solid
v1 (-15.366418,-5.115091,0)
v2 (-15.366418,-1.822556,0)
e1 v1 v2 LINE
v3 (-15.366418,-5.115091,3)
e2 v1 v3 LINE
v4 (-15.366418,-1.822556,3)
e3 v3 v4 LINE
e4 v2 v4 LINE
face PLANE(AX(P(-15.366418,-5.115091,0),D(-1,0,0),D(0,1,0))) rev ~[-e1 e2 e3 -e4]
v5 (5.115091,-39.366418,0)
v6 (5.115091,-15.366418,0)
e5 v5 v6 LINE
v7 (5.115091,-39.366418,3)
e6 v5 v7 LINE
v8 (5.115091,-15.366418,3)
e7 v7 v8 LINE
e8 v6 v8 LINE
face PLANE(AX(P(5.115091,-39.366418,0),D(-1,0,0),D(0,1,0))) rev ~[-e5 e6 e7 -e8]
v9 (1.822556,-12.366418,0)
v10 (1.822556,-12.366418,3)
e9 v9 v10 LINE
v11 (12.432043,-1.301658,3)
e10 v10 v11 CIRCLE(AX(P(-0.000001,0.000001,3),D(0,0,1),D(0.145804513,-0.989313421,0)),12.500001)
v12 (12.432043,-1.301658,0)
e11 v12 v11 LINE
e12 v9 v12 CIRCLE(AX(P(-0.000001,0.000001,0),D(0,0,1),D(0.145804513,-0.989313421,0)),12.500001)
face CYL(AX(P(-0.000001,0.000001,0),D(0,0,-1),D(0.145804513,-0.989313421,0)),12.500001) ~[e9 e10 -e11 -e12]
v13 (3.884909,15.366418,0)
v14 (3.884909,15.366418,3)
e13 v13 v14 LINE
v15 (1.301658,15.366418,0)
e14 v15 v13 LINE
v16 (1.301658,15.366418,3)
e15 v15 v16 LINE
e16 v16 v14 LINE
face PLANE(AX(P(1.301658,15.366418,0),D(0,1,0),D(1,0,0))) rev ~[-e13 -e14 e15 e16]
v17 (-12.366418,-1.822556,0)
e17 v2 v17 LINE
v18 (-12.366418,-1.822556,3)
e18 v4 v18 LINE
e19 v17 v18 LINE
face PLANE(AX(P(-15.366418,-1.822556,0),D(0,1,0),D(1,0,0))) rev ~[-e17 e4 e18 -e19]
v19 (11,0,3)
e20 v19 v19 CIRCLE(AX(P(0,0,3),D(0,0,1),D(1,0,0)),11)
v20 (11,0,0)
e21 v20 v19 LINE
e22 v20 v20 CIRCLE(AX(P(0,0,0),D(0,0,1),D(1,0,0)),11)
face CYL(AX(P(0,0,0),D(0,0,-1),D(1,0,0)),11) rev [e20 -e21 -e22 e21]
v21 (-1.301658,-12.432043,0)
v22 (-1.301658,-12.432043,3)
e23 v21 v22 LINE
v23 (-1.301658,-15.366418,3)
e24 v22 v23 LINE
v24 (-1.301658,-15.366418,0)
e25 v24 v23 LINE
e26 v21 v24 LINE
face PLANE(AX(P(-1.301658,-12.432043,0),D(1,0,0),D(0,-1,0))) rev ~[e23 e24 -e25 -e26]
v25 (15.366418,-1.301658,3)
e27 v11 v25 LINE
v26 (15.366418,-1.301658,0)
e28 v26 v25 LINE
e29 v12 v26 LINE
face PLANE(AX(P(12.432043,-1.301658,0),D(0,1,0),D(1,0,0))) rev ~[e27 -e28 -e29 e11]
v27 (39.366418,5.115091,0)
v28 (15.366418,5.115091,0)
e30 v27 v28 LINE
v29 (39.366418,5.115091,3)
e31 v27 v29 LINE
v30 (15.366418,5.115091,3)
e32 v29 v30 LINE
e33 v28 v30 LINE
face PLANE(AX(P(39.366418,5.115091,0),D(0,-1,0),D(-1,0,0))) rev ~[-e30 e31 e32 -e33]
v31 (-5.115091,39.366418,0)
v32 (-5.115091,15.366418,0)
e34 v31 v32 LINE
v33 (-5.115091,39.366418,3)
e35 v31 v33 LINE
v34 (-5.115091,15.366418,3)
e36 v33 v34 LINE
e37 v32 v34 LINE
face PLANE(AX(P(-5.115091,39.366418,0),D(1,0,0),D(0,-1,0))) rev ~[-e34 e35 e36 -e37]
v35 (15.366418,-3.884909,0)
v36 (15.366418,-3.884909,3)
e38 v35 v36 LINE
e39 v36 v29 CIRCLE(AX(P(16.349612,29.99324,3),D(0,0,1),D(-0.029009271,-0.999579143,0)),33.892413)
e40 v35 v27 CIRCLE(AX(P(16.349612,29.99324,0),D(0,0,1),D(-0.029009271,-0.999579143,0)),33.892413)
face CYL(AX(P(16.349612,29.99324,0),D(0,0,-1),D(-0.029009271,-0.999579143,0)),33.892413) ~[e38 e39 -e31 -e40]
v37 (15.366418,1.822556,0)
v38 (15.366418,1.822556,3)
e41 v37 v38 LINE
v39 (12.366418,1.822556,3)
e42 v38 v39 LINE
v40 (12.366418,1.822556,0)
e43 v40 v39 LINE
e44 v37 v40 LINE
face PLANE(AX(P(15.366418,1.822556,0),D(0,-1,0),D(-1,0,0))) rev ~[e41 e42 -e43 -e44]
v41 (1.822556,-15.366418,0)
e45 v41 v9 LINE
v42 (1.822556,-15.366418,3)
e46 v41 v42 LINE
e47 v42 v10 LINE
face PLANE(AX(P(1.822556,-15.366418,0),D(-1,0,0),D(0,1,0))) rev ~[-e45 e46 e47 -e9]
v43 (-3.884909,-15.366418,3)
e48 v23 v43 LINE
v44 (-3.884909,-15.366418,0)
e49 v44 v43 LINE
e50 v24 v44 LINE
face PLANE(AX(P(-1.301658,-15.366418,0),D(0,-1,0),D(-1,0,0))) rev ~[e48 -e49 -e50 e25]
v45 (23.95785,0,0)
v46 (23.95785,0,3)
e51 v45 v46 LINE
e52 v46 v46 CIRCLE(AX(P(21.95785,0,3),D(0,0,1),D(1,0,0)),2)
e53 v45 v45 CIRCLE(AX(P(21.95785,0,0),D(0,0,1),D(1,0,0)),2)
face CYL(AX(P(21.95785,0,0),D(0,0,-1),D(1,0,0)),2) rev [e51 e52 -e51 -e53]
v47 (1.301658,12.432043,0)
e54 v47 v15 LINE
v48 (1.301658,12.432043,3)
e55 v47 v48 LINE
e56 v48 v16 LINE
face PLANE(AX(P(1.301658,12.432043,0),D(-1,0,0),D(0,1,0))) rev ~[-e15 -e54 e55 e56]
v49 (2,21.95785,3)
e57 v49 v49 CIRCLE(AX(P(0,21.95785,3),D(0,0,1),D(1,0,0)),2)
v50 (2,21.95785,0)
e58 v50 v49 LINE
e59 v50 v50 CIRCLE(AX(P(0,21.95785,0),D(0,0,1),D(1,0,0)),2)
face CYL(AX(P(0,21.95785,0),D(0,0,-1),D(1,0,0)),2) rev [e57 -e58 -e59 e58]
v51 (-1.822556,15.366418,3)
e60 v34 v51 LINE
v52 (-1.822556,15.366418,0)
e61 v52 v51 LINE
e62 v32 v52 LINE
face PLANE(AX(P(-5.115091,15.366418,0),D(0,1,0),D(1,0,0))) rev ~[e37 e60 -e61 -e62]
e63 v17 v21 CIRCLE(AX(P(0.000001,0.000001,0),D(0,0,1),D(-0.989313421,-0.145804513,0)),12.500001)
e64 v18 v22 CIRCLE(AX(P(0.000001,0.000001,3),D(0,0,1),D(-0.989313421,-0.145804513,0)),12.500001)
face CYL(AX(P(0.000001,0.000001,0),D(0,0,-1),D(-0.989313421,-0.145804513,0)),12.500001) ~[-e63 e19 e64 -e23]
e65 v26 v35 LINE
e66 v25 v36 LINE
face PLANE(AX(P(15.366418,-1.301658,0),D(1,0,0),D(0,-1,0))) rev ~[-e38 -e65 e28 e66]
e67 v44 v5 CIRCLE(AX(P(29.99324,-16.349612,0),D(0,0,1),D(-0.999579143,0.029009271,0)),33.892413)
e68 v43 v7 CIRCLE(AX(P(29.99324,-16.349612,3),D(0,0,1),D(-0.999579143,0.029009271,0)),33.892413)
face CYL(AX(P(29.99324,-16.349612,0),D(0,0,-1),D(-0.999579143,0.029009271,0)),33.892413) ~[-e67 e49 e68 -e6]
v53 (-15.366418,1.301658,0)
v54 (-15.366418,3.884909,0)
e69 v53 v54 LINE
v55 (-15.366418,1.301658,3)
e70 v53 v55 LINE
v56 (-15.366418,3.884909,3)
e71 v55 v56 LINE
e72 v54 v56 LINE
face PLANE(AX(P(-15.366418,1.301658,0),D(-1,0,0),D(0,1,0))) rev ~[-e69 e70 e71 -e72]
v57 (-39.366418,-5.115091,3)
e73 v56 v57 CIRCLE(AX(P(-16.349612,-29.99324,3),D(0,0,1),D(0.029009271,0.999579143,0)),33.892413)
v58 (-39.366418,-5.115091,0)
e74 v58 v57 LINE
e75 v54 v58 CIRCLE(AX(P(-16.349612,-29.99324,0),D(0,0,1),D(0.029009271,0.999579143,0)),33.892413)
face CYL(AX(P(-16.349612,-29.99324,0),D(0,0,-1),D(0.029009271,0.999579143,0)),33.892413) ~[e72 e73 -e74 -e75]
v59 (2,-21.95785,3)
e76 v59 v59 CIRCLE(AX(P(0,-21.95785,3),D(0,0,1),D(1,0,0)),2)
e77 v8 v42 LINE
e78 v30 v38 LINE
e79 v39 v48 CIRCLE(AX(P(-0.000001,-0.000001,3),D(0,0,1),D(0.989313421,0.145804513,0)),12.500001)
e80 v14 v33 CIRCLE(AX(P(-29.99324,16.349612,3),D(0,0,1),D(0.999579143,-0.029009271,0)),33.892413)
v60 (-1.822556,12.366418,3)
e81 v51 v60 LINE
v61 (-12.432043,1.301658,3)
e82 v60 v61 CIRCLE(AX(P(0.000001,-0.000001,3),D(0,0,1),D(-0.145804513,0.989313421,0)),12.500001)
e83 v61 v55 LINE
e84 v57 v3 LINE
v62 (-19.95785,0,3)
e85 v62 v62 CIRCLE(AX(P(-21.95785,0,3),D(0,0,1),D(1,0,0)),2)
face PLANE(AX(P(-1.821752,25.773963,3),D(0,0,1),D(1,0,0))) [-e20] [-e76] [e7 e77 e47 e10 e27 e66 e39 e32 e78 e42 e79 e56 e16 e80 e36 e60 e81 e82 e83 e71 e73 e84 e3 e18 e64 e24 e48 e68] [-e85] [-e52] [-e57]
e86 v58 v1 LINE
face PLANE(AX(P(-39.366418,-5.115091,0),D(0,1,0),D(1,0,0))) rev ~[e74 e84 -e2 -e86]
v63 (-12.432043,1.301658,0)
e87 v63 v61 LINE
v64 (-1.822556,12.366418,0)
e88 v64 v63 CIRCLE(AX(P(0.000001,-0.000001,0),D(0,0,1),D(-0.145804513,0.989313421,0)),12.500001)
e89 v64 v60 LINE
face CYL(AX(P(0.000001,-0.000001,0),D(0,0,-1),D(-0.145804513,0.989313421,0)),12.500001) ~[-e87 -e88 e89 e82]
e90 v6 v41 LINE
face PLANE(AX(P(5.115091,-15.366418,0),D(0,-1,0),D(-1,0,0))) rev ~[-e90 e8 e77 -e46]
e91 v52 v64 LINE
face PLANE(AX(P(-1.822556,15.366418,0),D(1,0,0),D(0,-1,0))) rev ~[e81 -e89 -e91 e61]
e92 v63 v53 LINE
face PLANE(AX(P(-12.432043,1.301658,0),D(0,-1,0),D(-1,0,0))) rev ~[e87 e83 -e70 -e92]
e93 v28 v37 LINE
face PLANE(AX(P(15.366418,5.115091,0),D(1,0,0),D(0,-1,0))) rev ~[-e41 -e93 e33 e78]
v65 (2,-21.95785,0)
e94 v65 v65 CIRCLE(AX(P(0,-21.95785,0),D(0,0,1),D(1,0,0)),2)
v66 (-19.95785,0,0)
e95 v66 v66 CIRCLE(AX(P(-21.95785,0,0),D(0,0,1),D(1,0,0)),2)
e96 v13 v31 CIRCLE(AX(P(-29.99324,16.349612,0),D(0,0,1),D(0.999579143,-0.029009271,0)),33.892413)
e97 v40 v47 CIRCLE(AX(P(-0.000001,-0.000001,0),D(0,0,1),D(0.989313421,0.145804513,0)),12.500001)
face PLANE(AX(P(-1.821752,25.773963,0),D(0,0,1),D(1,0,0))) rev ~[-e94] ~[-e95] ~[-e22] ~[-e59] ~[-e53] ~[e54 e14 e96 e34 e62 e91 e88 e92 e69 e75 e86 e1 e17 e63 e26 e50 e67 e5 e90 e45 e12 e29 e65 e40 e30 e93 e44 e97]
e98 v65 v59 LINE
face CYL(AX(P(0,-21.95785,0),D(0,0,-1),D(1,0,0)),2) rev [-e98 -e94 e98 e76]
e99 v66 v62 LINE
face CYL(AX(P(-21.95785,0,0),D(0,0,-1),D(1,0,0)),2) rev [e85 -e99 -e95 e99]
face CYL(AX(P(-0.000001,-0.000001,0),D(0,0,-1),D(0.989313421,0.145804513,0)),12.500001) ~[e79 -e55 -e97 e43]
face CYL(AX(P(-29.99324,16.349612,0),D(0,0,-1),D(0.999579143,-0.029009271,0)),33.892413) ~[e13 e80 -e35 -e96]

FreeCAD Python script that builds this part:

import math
import FreeCAD as App
import Part
import Sketcher

V = App.Vector
Q = App.Units.Quantity

doc = App.newDocument("Part")
body = doc.addObject("PartDesign::Body", "Body")

# Sketch on XY plane
sketch1 = body.newObject("Sketcher::SketchObject", "Sketch")
sketch1.AttachmentSupport = (doc.getObject("XY_Plane"), [""])
sketch1.MapMode = "FlatFace"
sketch1.addGeometry(Part.ArcOfCircle(Part.Circle(V(-30, 16.3, 0), V(0, 0, 1), 33.9), math.radians(-2), math.radians(43)), False)
sketch1.addGeometry(Part.LineSegment(V(-5.1, 39.4, 0), V(-5.1, 15.4, 0)), False)
sketch1.addGeometry(Part.LineSegment(V(-5.1, 15.4, 0), V(-1.8, 15.4, 0)), False)
sketch1.addGeometry(Part.LineSegment(V(-1.8, 15.4, 0), V(-1.8, 12.4, 0)), False)
sketch1.addGeometry(Part.ArcOfCircle(Part.Circle(V(0, 0, 0), V(0, 0, 1), 12.5), math.radians(98), math.radians(174)), False)
sketch1.addGeometry(Part.LineSegment(V(-12.4, 1.3, 0), V(-15.4, 1.3, 0)), False)
sketch1.addGeometry(Part.LineSegment(V(-15.4, 1.3, 0), V(-15.4, 3.9, 0)), False)
sketch1.addGeometry(Part.ArcOfCircle(Part.Circle(V(-16.3, -30, 0), V(0, 0, 1), 33.9), math.radians(88), math.radians(133)), False)
sketch1.addGeometry(Part.LineSegment(V(-39.4, -5.1, 0), V(-15.4, -5.1, 0)), False)
sketch1.addGeometry(Part.LineSegment(V(-15.4, -5.1, 0), V(-15.4, -1.8, 0)), False)
sketch1.addGeometry(Part.LineSegment(V(-15.4, -1.8, 0), V(-12.4, -1.8, 0)), False)
sketch1.addGeometry(Part.ArcOfCircle(Part.Circle(V(0, 0, 0), V(0, 0, 1), 12.5), math.radians(-172), math.radians(-96)), False)
sketch1.addGeometry(Part.LineSegment(V(-1.3, -12.4, 0), V(-1.3, -15.4, 0)), False)
sketch1.addGeometry(Part.LineSegment(V(-1.3, -15.4, 0), V(-3.9, -15.4, 0)), False)
sketch1.addGeometry(Part.ArcOfCircle(Part.Circle(V(30, -16.3, 0), V(0, 0, 1), 33.9), math.radians(178), math.radians(223)), False)
sketch1.addGeometry(Part.LineSegment(V(5.1, -39.4, 0), V(5.1, -15.4, 0)), False)
sketch1.addGeometry(Part.LineSegment(V(5.1, -15.4, 0), V(1.8, -15.4, 0)), False)
sketch1.addGeometry(Part.LineSegment(V(1.8, -15.4, 0), V(1.8, -12.4, 0)), False)
sketch1.addGeometry(Part.ArcOfCircle(Part.Circle(V(0, 0, 0), V(0, 0, 1), 12.5), math.radians(-82), math.radians(-6)), False)
sketch1.addGeometry(Part.LineSegment(V(12.4, -1.3, 0), V(15.4, -1.3, 0)), False)
sketch1.addGeometry(Part.LineSegment(V(15.4, -1.3, 0), V(15.4, -3.9, 0)), False)
sketch1.addGeometry(Part.ArcOfCircle(Part.Circle(V(16.3, 30, 0), V(0, 0, 1), 33.9), math.radians(-92), math.radians(-47)), False)
sketch1.addGeometry(Part.LineSegment(V(39.4, 5.1, 0), V(15.4, 5.1, 0)), False)
sketch1.addGeometry(Part.LineSegment(V(15.4, 5.1, 0), V(15.4, 1.8, 0)), False)
sketch1.addGeometry(Part.LineSegment(V(15.4, 1.8, 0), V(12.4, 1.8, 0)), False)
sketch1.addGeometry(Part.ArcOfCircle(Part.Circle(V(0, 0, 0), V(0, 0, 1), 12.5), math.radians(8), math.radians(84)), False)
sketch1.addGeometry(Part.LineSegment(V(1.3, 12.4, 0), V(1.3, 15.4, 0)), False)
sketch1.addGeometry(Part.LineSegment(V(1.3, 15.4, 0), V(3.9, 15.4, 0)), False)
sketch1.addGeometry(Part.Circle(V(0, -22, 0), V(0, 0, 1), 2), False)
sketch1.addGeometry(Part.Circle(V(0, 0, 0), V(0, 0, 1), 11), False)
sketch1.addGeometry(Part.Circle(V(0, 22, 0), V(0, 0, 1), 2), False)
sketch1.addGeometry(Part.Circle(V(-22, 0, 0), V(0, 0, 1), 2), False)
sketch1.addGeometry(Part.Circle(V(22, 0, 0), V(0, 0, 1), 2), False)
sketch1.addConstraint(Sketcher.Constraint("Coincident", 0, 2, 1, 1))
sketch1.addConstraint(Sketcher.Constraint("Coincident", 1, 2, 2, 1))
sketch1.addConstraint(Sketcher.Constraint("Coincident", 2, 2, 3, 1))
sketch1.addConstraint(Sketcher.Constraint("Coincident", 3, 2, 4, 1))
sketch1.addConstraint(Sketcher.Constraint("Coincident", 4, 2, 5, 1))
sketch1.addConstraint(Sketcher.Constraint("Coincident", 5, 2, 6, 1))
sketch1.addConstraint(Sketcher.Constraint("Coincident", 6, 2, 7, 1))
sketch1.addConstraint(Sketcher.Constraint("Coincident", 7, 2, 8, 1))
sketch1.addConstraint(Sketcher.Constraint("Coincident", 8, 2, 9, 1))
sketch1.addConstraint(Sketcher.Constraint("Coincident", 9, 2, 10, 1))
sketch1.addConstraint(Sketcher.Constraint("Coincident", 10, 2, 11, 1))
sketch1.addConstraint(Sketcher.Constraint("Coincident", 11, 2, 12, 1))
sketch1.addConstraint(Sketcher.Constraint("Coincident", 12, 2, 13, 1))
sketch1.addConstraint(Sketcher.Constraint("Coincident", 13, 2, 14, 1))
sketch1.addConstraint(Sketcher.Constraint("Coincident", 14, 2, 15, 1))
sketch1.addConstraint(Sketcher.Constraint("Coincident", 15, 2, 16, 1))
sketch1.addConstraint(Sketcher.Constraint("Coincident", 16, 2, 17, 1))
sketch1.addConstraint(Sketcher.Constraint("Coincident", 17, 2, 18, 1))
sketch1.addConstraint(Sketcher.Constraint("Coincident", 18, 2, 19, 1))
sketch1.addConstraint(Sketcher.Constraint("Coincident", 19, 2, 20, 1))
sketch1.addConstraint(Sketcher.Constraint("Coincident", 20, 2, 21, 1))
sketch1.addConstraint(Sketcher.Constraint("Coincident", 21, 2, 22, 1))
sketch1.addConstraint(Sketcher.Constraint("Coincident", 22, 2, 23, 1))
sketch1.addConstraint(Sketcher.Constraint("Coincident", 23, 2, 24, 1))
sketch1.addConstraint(Sketcher.Constraint("Coincident", 24, 2, 25, 1))
sketch1.addConstraint(Sketcher.Constraint("Coincident", 25, 2, 26, 1))
sketch1.addConstraint(Sketcher.Constraint("Coincident", 26, 2, 27, 1))
sketch1.addConstraint(Sketcher.Constraint("Coincident", 27, 2, 0, 1))
sketch1.addConstraint(Sketcher.Constraint("Vertical", 1))
sketch1.addConstraint(Sketcher.Constraint("Horizontal", 2))
sketch1.addConstraint(Sketcher.Constraint("Vertical", 3))
sketch1.addConstraint(Sketcher.Constraint("Horizontal", 5))
sketch1.addConstraint(Sketcher.Constraint("Vertical", 6))
sketch1.addConstraint(Sketcher.Constraint("Horizontal", 8))
sketch1.addConstraint(Sketcher.Constraint("Vertical", 9))
sketch1.addConstraint(Sketcher.Constraint("Horizontal", 10))
sketch1.addConstraint(Sketcher.Constraint("Vertical", 12))
sketch1.addConstraint(Sketcher.Constraint("Horizontal", 13))
sketch1.addConstraint(Sketcher.Constraint("Vertical", 15))
sketch1.addConstraint(Sketcher.Constraint("Horizontal", 16))
sketch1.addConstraint(Sketcher.Constraint("Vertical", 17))
sketch1.addConstraint(Sketcher.Constraint("Horizontal", 19))
sketch1.addConstraint(Sketcher.Constraint("Vertical", 20))
sketch1.addConstraint(Sketcher.Constraint("Horizontal", 22))
sketch1.addConstraint(Sketcher.Constraint("Vertical", 23))
sketch1.addConstraint(Sketcher.Constraint("Horizontal", 24))
sketch1.addConstraint(Sketcher.Constraint("Vertical", 26))
sketch1.addConstraint(Sketcher.Constraint("Horizontal", 27))
sketch1.addConstraint(Sketcher.Constraint("Coincident", 4, 3, -1, 1))
sketch1.addConstraint(Sketcher.Constraint("Coincident", 11, 3, -1, 1))
sketch1.addConstraint(Sketcher.Constraint("Coincident", 18, 3, -1, 1))
sketch1.addConstraint(Sketcher.Constraint("Coincident", 25, 3, -1, 1))
sketch1.addConstraint(Sketcher.Constraint("Coincident", 29, 3, -1, 1))
sketch1.addConstraint(Sketcher.Constraint("Equal", 0, 7))
sketch1.addConstraint(Sketcher.Constraint("Equal", 4, 11))
sketch1.addConstraint(Sketcher.Constraint("Equal", 7, 14))
sketch1.addConstraint(Sketcher.Constraint("Equal", 11, 18))
sketch1.addConstraint(Sketcher.Constraint("Equal", 14, 21))
sketch1.addConstraint(Sketcher.Constraint("Equal", 18, 25))
sketch1.addConstraint(Sketcher.Constraint("Equal", 28, 30))
sketch1.addConstraint(Sketcher.Constraint("Equal", 30, 31))
sketch1.addConstraint(Sketcher.Constraint("Equal", 31, 32))
sketch1.addConstraint(Sketcher.Constraint("Symmetric", 0, 3, 14, 3, -1, 1))
sketch1.addConstraint(Sketcher.Constraint("Symmetric", 7, 3, 21, 3, -1, 1))
sketch1.addConstraint(Sketcher.Constraint("Symmetric", 28, 3, 30, 3, -1, 1))
sketch1.addConstraint(Sketcher.Constraint("Symmetric", 31, 3, 32, 3, -1, 1))
sketch1.addConstraint(Sketcher.Constraint("Symmetric", 1, 2, 15, 2, -1, 1))
sketch1.addConstraint(Sketcher.Constraint("Symmetric", 5, 2, 19, 2, -1, 1))
sketch1.addConstraint(Sketcher.Constraint("Symmetric", 8, 2, 22, 2, -1, 1))
sketch1.addConstraint(Sketcher.Constraint("Symmetric", 12, 2, 26, 2, -1, 1))
sketch1.addConstraint(Sketcher.Constraint("PointOnObject", 28, 3, -2))
sketch1.addConstraint(Sketcher.Constraint("PointOnObject", 31, 3, -1))
sketch1.addConstraint(Sketcher.Constraint("Horizontal", 13, 2, 15, 2))
sketch1.addConstraint(Sketcher.Constraint("Vertical", 6, 2, 8, 2))
sketch1.addConstraint(Sketcher.Constraint("Equal", 2, 16))
sketch1.addConstraint(Sketcher.Constraint("Equal", 10, 24))
sketch1.addConstraint(Sketcher.Constraint("Equal", 22, 1))
sketch1.addConstraint(Sketcher.Constraint("Equal", 24, 3))
sketch1.addConstraint(Sketcher.Constraint("Equal", 27, 6))
sketch1.addConstraint(Sketcher.Constraint("Equal", 16, 9))
sketch1.addConstraint(Sketcher.Constraint("Equal", 19, 12))
sketch1.addConstraint(Sketcher.Constraint("Diameter", 28, Q("4 mm")))
sketch1.addConstraint(Sketcher.Constraint("Diameter", 29, Q("22 mm")))
sketch1.addConstraint(Sketcher.Constraint("Radius", 4, Q("12.500001 mm")))
sketch1.addConstraint(Sketcher.Constraint("DistanceX", 8, 1, 8, 2, Q("24 mm")))
sketch1.addConstraint(Sketcher.Constraint("DistanceX", 10, 1, 10, 2, Q("3 mm")))
sketch1.addConstraint(Sketcher.Constraint("DistanceY", 7, 2, 6, 2, Q("9 mm")))
sketch1.addConstraint(Sketcher.Constraint("DistanceX", 13, 2, 14, 2, Q("9 mm")))
sketch1.addConstraint(Sketcher.Constraint("Radius", 0, Q("33.892413 mm")))
sketch1.addConstraint(Sketcher.Constraint("DistanceX", 13, 2, 13, 1, Q("2.583251 mm")))
sketch1.addConstraint(Sketcher.Constraint("DistanceX", 2, 1, 2, 2, Q("3.292535 mm")))
sketch1.addConstraint(Sketcher.Constraint("DistanceX", 5, 2, 5, 1, Q("2.934375 mm")))
sketch1.addConstraint(Sketcher.Constraint("DistanceY", 28, 3, -1, 1, Q("21.95785 mm")))
sketch1.addConstraint(Sketcher.Constraint("DistanceX", 31, 3, -1, 1, Q("21.95785 mm")))
pad1 = body.newObject("PartDesign::Pad", "Pad")
pad1.Profile = sketch1
pad1.Length = 3

doc.recompute()
